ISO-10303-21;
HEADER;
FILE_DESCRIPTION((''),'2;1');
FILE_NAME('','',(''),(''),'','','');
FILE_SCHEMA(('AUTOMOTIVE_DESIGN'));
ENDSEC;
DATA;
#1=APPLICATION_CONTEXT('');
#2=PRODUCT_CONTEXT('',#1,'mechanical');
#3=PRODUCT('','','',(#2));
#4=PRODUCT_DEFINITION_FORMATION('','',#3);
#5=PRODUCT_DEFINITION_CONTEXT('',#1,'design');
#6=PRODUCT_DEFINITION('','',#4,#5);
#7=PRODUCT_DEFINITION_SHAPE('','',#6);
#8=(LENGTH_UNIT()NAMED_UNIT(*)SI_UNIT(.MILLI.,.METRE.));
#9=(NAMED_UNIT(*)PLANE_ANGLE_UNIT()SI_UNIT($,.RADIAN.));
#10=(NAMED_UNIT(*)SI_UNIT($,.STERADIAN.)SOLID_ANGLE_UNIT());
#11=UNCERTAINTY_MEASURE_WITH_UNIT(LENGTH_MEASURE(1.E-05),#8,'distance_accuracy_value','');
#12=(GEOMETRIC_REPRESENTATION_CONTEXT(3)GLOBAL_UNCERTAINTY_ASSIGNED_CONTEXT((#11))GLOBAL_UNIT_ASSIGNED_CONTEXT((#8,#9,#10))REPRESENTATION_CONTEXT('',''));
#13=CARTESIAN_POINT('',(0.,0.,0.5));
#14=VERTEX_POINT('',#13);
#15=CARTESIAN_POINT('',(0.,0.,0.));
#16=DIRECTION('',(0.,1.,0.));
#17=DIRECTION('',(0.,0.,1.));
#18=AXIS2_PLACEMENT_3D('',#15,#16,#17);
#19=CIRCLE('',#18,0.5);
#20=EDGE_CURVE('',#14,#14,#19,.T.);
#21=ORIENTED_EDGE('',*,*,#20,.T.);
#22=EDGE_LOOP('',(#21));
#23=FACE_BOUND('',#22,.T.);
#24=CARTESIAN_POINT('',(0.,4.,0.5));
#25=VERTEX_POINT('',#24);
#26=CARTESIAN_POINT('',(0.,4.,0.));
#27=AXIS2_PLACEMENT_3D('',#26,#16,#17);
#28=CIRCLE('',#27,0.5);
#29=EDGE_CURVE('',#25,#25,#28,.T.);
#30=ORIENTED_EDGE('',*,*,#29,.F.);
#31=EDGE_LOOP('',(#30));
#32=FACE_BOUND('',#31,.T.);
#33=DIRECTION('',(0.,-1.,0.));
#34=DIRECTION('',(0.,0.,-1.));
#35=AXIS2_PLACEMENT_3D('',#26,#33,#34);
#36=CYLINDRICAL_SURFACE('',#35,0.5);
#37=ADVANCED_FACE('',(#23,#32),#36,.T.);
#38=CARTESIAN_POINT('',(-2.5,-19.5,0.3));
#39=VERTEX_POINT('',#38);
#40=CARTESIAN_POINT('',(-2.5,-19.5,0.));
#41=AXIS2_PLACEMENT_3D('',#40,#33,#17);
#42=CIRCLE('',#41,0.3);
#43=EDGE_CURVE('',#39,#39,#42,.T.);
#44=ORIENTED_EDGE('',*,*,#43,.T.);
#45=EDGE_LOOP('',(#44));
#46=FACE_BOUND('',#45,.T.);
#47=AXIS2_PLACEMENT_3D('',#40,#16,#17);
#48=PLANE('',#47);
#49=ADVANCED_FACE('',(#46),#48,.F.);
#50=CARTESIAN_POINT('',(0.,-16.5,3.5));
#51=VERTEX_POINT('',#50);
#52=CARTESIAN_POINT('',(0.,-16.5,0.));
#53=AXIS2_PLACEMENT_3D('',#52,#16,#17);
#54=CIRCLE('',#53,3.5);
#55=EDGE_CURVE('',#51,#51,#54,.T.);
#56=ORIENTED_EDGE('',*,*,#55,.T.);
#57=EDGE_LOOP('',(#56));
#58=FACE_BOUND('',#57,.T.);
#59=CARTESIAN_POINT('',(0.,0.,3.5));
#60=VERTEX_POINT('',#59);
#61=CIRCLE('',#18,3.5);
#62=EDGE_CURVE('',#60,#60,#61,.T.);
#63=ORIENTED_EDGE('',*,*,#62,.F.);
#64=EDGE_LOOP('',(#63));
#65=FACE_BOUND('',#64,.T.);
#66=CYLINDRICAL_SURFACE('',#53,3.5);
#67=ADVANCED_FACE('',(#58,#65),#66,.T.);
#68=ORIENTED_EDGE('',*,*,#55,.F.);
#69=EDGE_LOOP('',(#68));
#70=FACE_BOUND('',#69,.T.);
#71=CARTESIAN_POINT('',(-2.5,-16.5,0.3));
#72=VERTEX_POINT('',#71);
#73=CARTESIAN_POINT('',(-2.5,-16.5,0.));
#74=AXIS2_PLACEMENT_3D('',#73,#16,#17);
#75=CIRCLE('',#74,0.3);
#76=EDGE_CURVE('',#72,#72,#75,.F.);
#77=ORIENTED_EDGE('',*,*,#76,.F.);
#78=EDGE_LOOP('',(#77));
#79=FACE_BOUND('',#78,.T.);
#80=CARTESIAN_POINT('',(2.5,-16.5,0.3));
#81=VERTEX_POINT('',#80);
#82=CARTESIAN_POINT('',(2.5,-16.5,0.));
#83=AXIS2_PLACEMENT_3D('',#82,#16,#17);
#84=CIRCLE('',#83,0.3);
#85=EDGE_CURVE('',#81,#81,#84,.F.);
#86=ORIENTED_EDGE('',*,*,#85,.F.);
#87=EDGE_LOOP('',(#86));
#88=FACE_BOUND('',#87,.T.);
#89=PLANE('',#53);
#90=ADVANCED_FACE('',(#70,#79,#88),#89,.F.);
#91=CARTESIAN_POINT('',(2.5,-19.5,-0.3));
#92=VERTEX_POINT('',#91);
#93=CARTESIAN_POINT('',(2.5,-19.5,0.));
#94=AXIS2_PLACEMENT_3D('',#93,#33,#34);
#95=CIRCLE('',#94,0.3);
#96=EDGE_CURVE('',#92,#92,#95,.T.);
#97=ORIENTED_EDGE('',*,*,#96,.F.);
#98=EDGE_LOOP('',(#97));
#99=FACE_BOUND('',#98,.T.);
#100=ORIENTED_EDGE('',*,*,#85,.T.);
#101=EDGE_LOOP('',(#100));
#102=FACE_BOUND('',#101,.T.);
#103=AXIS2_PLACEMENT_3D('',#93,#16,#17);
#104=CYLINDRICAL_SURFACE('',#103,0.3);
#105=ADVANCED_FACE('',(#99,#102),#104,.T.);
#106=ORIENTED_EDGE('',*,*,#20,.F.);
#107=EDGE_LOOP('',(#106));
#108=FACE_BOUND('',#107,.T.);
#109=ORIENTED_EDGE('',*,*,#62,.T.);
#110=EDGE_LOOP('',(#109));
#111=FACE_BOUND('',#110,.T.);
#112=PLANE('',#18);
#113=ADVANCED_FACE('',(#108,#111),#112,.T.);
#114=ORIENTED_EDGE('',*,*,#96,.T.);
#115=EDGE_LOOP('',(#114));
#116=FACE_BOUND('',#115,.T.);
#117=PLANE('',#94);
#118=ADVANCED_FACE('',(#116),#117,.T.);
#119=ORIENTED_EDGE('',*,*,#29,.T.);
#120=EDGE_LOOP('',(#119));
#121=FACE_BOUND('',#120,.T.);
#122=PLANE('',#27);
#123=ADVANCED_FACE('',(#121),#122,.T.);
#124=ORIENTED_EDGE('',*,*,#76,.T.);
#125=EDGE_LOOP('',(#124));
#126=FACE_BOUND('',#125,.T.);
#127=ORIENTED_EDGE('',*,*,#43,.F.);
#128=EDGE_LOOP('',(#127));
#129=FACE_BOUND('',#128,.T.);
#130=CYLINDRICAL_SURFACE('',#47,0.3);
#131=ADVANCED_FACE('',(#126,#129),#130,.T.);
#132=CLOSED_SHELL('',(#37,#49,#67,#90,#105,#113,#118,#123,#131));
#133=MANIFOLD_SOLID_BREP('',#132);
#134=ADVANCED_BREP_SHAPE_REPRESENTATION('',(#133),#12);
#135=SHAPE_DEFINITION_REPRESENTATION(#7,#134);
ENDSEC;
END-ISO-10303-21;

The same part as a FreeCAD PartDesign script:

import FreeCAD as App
import Part
import Sketcher

doc = App.newDocument("Part")
body = doc.addObject("PartDesign::Body", "Body")

# Sketch on XZ plane
sketch1 = body.newObject("Sketcher::SketchObject", "Sketch")
sketch1.AttachmentSupport = (doc.getObject("XZ_Plane"), [""])
sketch1.MapMode = "FlatFace"
sketch1.addGeometry(Part.Circle(App.Vector(0, 0, 0), App.Vector(0, 0, 1), 3.5), False)
sketch1.addConstraint([
    Sketcher.Constraint("Coincident", 0, 3, -1, 1),
    Sketcher.Constraint("Diameter", 0, 7.0),
])
pad1 = body.newObject("PartDesign::Pad", "Pad")
pad1.Profile = sketch1
pad1.Length = 16.5

# Sketch on XZ plane
sketch2 = body.newObject("Sketcher::SketchObject", "Sketch001")
sketch2.AttachmentSupport = (doc.getObject("XZ_Plane"), [""])
sketch2.MapMode = "FlatFace"
sketch2.addGeometry(Part.Circle(App.Vector(0, 0, 0), App.Vector(0, 0, 1), 0.5), False)
sketch2.addConstraint([
    Sketcher.Constraint("Coincident", 0, 3, -1, 1),
    Sketcher.Constraint("Diameter", 0, 1.0),
])
pad2 = body.newObject("PartDesign::Pad", "Pad001")
pad2.Profile = sketch2
pad2.Length = 4
pad2.Reversed = True

# Sketch on XZ plane
sketch3 = body.newObject("Sketcher::SketchObject", "Sketch002")
sketch3.AttachmentSupport = (doc.getObject("XZ_Plane"), [""])
sketch3.MapMode = "FlatFace"
sketch3.AttachmentOffset = App.Placement(App.Vector(0, 0, 16.5), App.Rotation())
sketch3.addGeometry([
    Part.Circle(App.Vector(2.5, 0, 0), App.Vector(0, 0, 1), 0.3),
    Part.Circle(App.Vector(-2.5, 0, 0), App.Vector(0, 0, 1), 0.3),
], False)
sketch3.addConstraint([
    Sketcher.Constraint("Equal", 0, 1),
    Sketcher.Constraint("Symmetric", 0, 3, 1, 3, -1, 1),
    Sketcher.Constraint("PointOnObject", 0, 3, -1),
    Sketcher.Constraint("Diameter", 0, 0.6),
    Sketcher.Constraint("DistanceX", 1, 3, 0, 3, 5.0),
])
pad3 = body.newObject("PartDesign::Pad", "Pad002")
pad3.Profile = sketch3
pad3.Length = 3

doc.recompute()
